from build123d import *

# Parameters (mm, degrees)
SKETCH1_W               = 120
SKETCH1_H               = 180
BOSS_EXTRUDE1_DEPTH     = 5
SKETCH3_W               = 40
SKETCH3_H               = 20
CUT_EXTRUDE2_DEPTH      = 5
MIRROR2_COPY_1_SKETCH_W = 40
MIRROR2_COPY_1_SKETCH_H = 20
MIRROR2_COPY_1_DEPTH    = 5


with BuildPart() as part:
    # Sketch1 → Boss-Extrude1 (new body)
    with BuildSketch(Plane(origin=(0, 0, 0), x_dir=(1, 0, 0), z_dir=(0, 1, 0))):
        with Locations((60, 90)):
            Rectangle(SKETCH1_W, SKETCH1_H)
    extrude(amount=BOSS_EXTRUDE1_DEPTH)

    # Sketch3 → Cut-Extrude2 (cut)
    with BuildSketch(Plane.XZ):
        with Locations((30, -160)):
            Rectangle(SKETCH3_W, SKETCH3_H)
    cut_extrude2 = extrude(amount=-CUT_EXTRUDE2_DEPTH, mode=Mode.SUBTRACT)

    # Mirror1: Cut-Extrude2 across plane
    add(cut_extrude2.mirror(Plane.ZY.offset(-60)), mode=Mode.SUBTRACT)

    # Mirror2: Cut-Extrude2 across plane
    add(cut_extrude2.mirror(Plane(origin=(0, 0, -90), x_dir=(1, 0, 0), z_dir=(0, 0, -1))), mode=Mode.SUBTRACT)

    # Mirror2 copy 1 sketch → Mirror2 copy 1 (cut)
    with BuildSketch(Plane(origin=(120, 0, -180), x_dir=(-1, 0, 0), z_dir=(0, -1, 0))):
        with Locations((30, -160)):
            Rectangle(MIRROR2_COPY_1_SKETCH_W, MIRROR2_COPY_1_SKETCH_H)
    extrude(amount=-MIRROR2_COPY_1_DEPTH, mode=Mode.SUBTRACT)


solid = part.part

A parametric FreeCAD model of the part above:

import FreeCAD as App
import Part
import Sketcher
from FreeCAD import Vector


def add_polygon(sketch, points):
    """Adds a closed chain of lines whose ends are joined by coincident constraints."""
    first, n = sketch.GeometryCount, len(points)
    for a, b in zip(points, points[1:] + points[:1]):
        sketch.addGeometry(Part.LineSegment(App.Vector(*a, 0), App.Vector(*b, 0)), False)
    for i in range(n):
        sketch.addConstraint(Sketcher.Constraint("Coincident", first + i, 2, first + (i + 1) % n, 1))

doc = App.newDocument("Part")
body = doc.addObject("PartDesign::Body", "Body")

sketch1 = doc.addObject("Sketcher::SketchObject", "Sketch")
body.addObject(sketch1)
sketch1.AttachmentSupport = (doc.XZ_Plane, [""])
sketch1.MapMode = "FlatFace"
add_polygon(sketch1, [(0, -180), (0, 0), (120, 0), (120, -180)])
sketch1.addConstraint(Sketcher.Constraint("Vertical", 0))
sketch1.addConstraint(Sketcher.Constraint("Horizontal", 1))
sketch1.addConstraint(Sketcher.Constraint("Vertical", 2))
sketch1.addConstraint(Sketcher.Constraint("Horizontal", 3))
sketch1.addConstraint(Sketcher.Constraint("Coincident", 0, 2, -1, 1))
sketch1.addConstraint(Sketcher.Constraint("DistanceX", 1, 1, 1, 2, 120.0))
sketch1.addConstraint(Sketcher.Constraint("DistanceY", 0, 1, 0, 2, 180.0))
pad1 = doc.addObject("PartDesign::Pad", "Pad")
body.addObject(pad1)
pad1.Profile = sketch1
pad1.Length = 5
pad1.Reversed = True

sketch2 = doc.addObject("Sketcher::SketchObject", "Sketch001")
body.addObject(sketch2)
sketch2.AttachmentSupport = (doc.XZ_Plane, [""])
sketch2.MapMode = "FlatFace"
add_polygon(sketch2, [(10, -150), (10, -170), (50, -170), (50, -150)])
sketch2.addConstraint(Sketcher.Constraint("Vertical", 0))
sketch2.addConstraint(Sketcher.Constraint("Horizontal", 1))
sketch2.addConstraint(Sketcher.Constraint("Vertical", 2))
sketch2.addConstraint(Sketcher.Constraint("Horizontal", 3))
sketch2.addConstraint(Sketcher.Constraint("DistanceX", 1, 1, 1, 2, 40.0))
sketch2.addConstraint(Sketcher.Constraint("DistanceY", 0, 2, 0, 1, 20.0))
sketch2.addConstraint(Sketcher.Constraint("DistanceX", -1, 1, 0, 2, 10.0))
sketch2.addConstraint(Sketcher.Constraint("DistanceY", 0, 2, -1, 1, 170.0))
pocket1 = doc.addObject("PartDesign::Pocket", "Pocket")
body.addObject(pocket1)
pocket1.Profile = sketch2
pocket1.Length = 5
doc.recompute()

datumplane = doc.addObject("PartDesign::Plane", "DatumPlane")
body.addObject(datumplane)
datumplane.AttachmentSupport = (doc.YZ_Plane, [""])
datumplane.MapMode = "FlatFace"
datumplane.AttachmentOffset = App.Placement(Vector(0, 0, 60), App.Rotation())
mirrored = doc.addObject("PartDesign::Mirrored", "Mirrored")
body.addObject(mirrored)
mirrored.Originals = [pocket1]
mirrored.MirrorPlane = (datumplane, [""])
body.Tip = mirrored
doc.recompute()

datumplane2 = doc.addObject("PartDesign::Plane", "DatumPlane001")
body.addObject(datumplane2)
datumplane2.AttachmentSupport = (doc.XY_Plane, [""])
datumplane2.MapMode = "FlatFace"
datumplane2.AttachmentOffset = App.Placement(Vector(0, 0, -90), App.Rotation())
mirrored2 = doc.addObject("PartDesign::Mirrored", "Mirrored001")
body.addObject(mirrored2)
mirrored2.Originals = [pocket1]
mirrored2.MirrorPlane = (datumplane2, [""])
body.Tip = mirrored2

sketch3 = doc.addObject("Sketcher::SketchObject", "Sketch002")
body.addObject(sketch3)
sketch3.AttachmentSupport = (doc.XZ_Plane, [""])
sketch3.MapMode = "FlatFace"
add_polygon(sketch3, [(110, -30), (110, -10), (70, -10), (70, -30)])
sketch3.addConstraint(Sketcher.Constraint("Vertical", 0))
sketch3.addConstraint(Sketcher.Constraint("Horizontal", 1))
sketch3.addConstraint(Sketcher.Constraint("Vertical", 2))
sketch3.addConstraint(Sketcher.Constraint("Horizontal", 3))
sketch3.addConstraint(Sketcher.Constraint("DistanceX", 1, 2, 1, 1, 40.0))
sketch3.addConstraint(Sketcher.Constraint("DistanceY", 0, 1, 0, 2, 20.0))
sketch3.addConstraint(Sketcher.Constraint("DistanceX", -1, 1, 0, 2, 110.0))
sketch3.addConstraint(Sketcher.Constraint("DistanceY", 0, 2, -1, 1, 10.0))
pocket2 = doc.addObject("PartDesign::Pocket", "Pocket001")
body.addObject(pocket2)
pocket2.Profile = sketch3
pocket2.Length = 5

doc.recompute()
